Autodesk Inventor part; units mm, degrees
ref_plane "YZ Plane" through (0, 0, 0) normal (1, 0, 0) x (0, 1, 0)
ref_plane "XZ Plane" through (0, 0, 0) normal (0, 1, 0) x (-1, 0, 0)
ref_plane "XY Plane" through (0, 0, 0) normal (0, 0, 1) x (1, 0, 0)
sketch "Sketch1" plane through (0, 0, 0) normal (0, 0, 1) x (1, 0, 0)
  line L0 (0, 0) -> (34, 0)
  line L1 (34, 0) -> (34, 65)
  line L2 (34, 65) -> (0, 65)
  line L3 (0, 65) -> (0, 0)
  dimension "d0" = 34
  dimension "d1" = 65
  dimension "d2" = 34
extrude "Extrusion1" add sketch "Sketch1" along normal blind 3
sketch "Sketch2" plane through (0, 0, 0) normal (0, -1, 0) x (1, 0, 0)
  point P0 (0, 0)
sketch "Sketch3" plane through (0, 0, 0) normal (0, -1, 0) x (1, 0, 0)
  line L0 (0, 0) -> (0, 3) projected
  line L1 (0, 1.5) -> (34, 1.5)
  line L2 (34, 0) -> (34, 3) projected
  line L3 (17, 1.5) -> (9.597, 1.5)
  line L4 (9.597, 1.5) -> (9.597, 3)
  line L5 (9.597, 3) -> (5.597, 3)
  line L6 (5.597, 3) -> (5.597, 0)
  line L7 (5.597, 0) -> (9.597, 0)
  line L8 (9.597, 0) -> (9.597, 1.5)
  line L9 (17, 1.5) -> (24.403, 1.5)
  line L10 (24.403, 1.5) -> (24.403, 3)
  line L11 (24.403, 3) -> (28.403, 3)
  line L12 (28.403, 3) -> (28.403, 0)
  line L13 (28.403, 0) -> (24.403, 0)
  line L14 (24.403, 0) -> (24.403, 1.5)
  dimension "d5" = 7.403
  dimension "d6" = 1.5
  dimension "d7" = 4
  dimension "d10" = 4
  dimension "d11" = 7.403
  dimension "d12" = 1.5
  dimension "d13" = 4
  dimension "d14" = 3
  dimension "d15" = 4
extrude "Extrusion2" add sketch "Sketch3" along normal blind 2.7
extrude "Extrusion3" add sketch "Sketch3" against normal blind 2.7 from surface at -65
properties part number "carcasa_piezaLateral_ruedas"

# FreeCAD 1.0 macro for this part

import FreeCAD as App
import Part
import Sketcher

V = App.Vector
Q = App.Units.Quantity

doc = App.newDocument("Part")
params = doc.addObject("Spreadsheet::Sheet", "Params")
for row, (alias, value) in enumerate([
    ("sketch1_width", "34 mm"),
    ("sketch1_height", "65 mm"),
    ("pad1_length", "3 mm"),
    ("sketch2_width", "4 mm"),
    ("sketch2_height", "3 mm"),
    ("pad2_length", "2.7 mm"),
    ("sketch3_width", "4 mm"),
    ("sketch3_height", "3 mm"),
    ("pad3_length", "2.7 mm"),
], start=1):
    params.set(f"A{row}", alias)
    params.set(f"B{row}", "=" + value)
    params.setAlias(f"B{row}", alias)

body = doc.addObject("PartDesign::Body", "Body")

# Sketch on XY plane
sketch1 = body.newObject("Sketcher::SketchObject", "Sketch")
sketch1.AttachmentSupport = (doc.getObject("XY_Plane"), [""])
sketch1.MapMode = "FlatFace"
sketch1.addGeometry([
    Part.LineSegment(V(0, 65, 0), V(0, 0, 0)),
    Part.LineSegment(V(0, 0, 0), V(34, 0, 0)),
    Part.LineSegment(V(34, 0, 0), V(34, 65, 0)),
    Part.LineSegment(V(34, 65, 0), V(0, 65, 0)),
], False)
sketch1.addConstraint([
    Sketcher.Constraint("Coincident", 0, 2, 1, 1),
    Sketcher.Constraint("Coincident", 1, 2, 2, 1),
    Sketcher.Constraint("Coincident", 2, 2, 3, 1),
    Sketcher.Constraint("Coincident", 3, 2, 0, 1),
    Sketcher.Constraint("Vertical", 0),
    Sketcher.Constraint("Horizontal", 1),
    Sketcher.Constraint("Vertical", 2),
    Sketcher.Constraint("Horizontal", 3),
    Sketcher.Constraint("Coincident", 0, 2, -1, 1),
    Sketcher.Constraint("DistanceX", 1, 1, 1, 2, Q("34 mm")),
    Sketcher.Constraint("DistanceY", 0, 2, 0, 1, Q("65 mm")),
])
sketch1.setExpression("Constraints[9]", "Params.sketch1_width")
sketch1.setExpression("Constraints[10]", "Params.sketch1_height")
pad1 = body.newObject("PartDesign::Pad", "Pad")
pad1.Profile = sketch1
pad1.setExpression("Length", "Params.pad1_length")

# Sketch on XZ plane
sketch2 = body.newObject("Sketcher::SketchObject", "Sketch001")
sketch2.AttachmentSupport = (doc.getObject("XZ_Plane"), [""])
sketch2.MapMode = "FlatFace"
sketch2.addGeometry([
    Part.LineSegment(V(24.4, 3, 0), V(24.4, 0, 0)),  # 0
    Part.LineSegment(V(24.4, 0, 0), V(28.4, 0, 0)),  # 1
    Part.LineSegment(V(28.4, 0, 0), V(28.4, 3, 0)),  # 2
    Part.LineSegment(V(28.4, 3, 0), V(24.4, 3, 0)),  # 3
    Part.LineSegment(V(9.6, 0, 0), V(9.6, 3, 0)),  # 4
    Part.LineSegment(V(9.6, 3, 0), V(5.6, 3, 0)),  # 5
    Part.LineSegment(V(5.6, 3, 0), V(5.6, 0, 0)),  # 6
    Part.LineSegment(V(5.6, 0, 0), V(9.6, 0, 0)),  # 7
], False)
sketch2.addConstraint([
    Sketcher.Constraint("Coincident", 0, 2, 1, 1),
    Sketcher.Constraint("Coincident", 1, 2, 2, 1),
    Sketcher.Constraint("Coincident", 2, 2, 3, 1),
    Sketcher.Constraint("Coincident", 3, 2, 0, 1),
    Sketcher.Constraint("Coincident", 4, 2, 5, 1),
    Sketcher.Constraint("Coincident", 5, 2, 6, 1),
    Sketcher.Constraint("Coincident", 6, 2, 7, 1),
    Sketcher.Constraint("Coincident", 7, 2, 4, 1),
    Sketcher.Constraint("Vertical", 0),
    Sketcher.Constraint("Horizontal", 1),
    Sketcher.Constraint("Vertical", 2),
    Sketcher.Constraint("Horizontal", 3),
    Sketcher.Constraint("Vertical", 4),
    Sketcher.Constraint("Horizontal", 5),
    Sketcher.Constraint("Vertical", 6),
    Sketcher.Constraint("Horizontal", 7),
    Sketcher.Constraint("PointOnObject", 0, 2, -1),
    Sketcher.Constraint("PointOnObject", 6, 2, -1),
    Sketcher.Constraint("Horizontal", 3, 2, 4, 2),
    Sketcher.Constraint("Equal", 3, 5),
    Sketcher.Constraint("DistanceX", 1, 1, 1, 2, Q("4 mm")),
    Sketcher.Constraint("DistanceY", 0, 2, 0, 1, Q("3 mm")),
    Sketcher.Constraint("DistanceX", -1, 1, 0, 2, Q("24.403 mm")),
    Sketcher.Constraint("DistanceX", -1, 1, 4, 2, Q("9.597 mm")),
])
sketch2.setExpression("Constraints[20]", "Params.sketch2_width")
sketch2.setExpression("Constraints[21]", "Params.sketch2_height")
pad2 = body.newObject("PartDesign::Pad", "Pad001")
pad2.Profile = sketch2
pad2.setExpression("Length", "Params.pad2_length")

# Sketch on XZ plane
sketch3 = body.newObject("Sketcher::SketchObject", "Sketch002")
sketch3.AttachmentSupport = (doc.getObject("XZ_Plane"), [""])
sketch3.MapMode = "FlatFace"
sketch3.AttachmentOffset = App.Placement(V(0, 0, -65), App.Rotation())
sketch3.addGeometry([
    Part.LineSegment(V(24.4, 3, 0), V(24.4, 0, 0)),  # 0
    Part.LineSegment(V(24.4, 0, 0), V(28.4, 0, 0)),  # 1
    Part.LineSegment(V(28.4, 0, 0), V(28.4, 3, 0)),  # 2
    Part.LineSegment(V(28.4, 3, 0), V(24.4, 3, 0)),  # 3
    Part.LineSegment(V(9.6, 0, 0), V(9.6, 3, 0)),  # 4
    Part.LineSegment(V(9.6, 3, 0), V(5.6, 3, 0)),  # 5
    Part.LineSegment(V(5.6, 3, 0), V(5.6, 0, 0)),  # 6
    Part.LineSegment(V(5.6, 0, 0), V(9.6, 0, 0)),  # 7
], False)
sketch3.addConstraint([
    Sketcher.Constraint("Coincident", 0, 2, 1, 1),
    Sketcher.Constraint("Coincident", 1, 2, 2, 1),
    Sketcher.Constraint("Coincident", 2, 2, 3, 1),
    Sketcher.Constraint("Coincident", 3, 2, 0, 1),
    Sketcher.Constraint("Coincident", 4, 2, 5, 1),
    Sketcher.Constraint("Coincident", 5, 2, 6, 1),
    Sketcher.Constraint("Coincident", 6, 2, 7, 1),
    Sketcher.Constraint("Coincident", 7, 2, 4, 1),
    Sketcher.Constraint("Vertical", 0),
    Sketcher.Constraint("Horizontal", 1),
    Sketcher.Constraint("Vertical", 2),
    Sketcher.Constraint("Horizontal", 3),
    Sketcher.Constraint("Vertical", 4),
    Sketcher.Constraint("Horizontal", 5),
    Sketcher.Constraint("Vertical", 6),
    Sketcher.Constraint("Horizontal", 7),
    Sketcher.Constraint("PointOnObject", 0, 2, -1),
    Sketcher.Constraint("PointOnObject", 6, 2, -1),
    Sketcher.Constraint("Horizontal", 3, 2, 4, 2),
    Sketcher.Constraint("Equal", 3, 5),
    Sketcher.Constraint("DistanceX", 1, 1, 1, 2, Q("4 mm")),
    Sketcher.Constraint("DistanceY", 0, 2, 0, 1, Q("3 mm")),
    Sketcher.Constraint("DistanceX", -1, 1, 0, 2, Q("24.403 mm")),
    Sketcher.Constraint("DistanceX", -1, 1, 4, 2, Q("9.597 mm")),
])
sketch3.setExpression("Constraints[20]", "Params.sketch3_width")
sketch3.setExpression("Constraints[21]", "Params.sketch3_height")
pad3 = body.newObject("PartDesign::Pad", "Pad002")
pad3.Profile = sketch3
pad3.setExpression("Length", "Params.pad3_length")
pad3.Reversed = True

doc.recompute()
